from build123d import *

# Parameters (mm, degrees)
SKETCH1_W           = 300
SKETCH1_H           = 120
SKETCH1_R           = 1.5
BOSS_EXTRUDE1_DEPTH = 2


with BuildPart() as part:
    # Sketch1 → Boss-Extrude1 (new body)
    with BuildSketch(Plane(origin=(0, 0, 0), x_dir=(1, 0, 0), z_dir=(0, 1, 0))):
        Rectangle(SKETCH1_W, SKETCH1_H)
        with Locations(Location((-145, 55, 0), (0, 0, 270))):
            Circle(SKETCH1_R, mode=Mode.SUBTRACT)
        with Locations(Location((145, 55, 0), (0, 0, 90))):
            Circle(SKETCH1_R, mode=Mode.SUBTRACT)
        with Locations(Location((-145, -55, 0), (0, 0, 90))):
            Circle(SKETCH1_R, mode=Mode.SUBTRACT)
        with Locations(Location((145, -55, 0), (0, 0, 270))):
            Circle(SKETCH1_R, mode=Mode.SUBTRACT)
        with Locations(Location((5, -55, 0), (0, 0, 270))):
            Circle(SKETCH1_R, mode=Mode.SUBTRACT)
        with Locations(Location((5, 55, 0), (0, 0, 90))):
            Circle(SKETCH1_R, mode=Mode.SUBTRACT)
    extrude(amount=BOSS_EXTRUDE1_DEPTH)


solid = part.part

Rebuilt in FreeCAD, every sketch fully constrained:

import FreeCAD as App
import Part
import Sketcher

doc = App.newDocument("Part")
body = doc.addObject("PartDesign::Body", "Body")

sketch1 = body.newObject("Sketcher::SketchObject", "Sketch")
sketch1.AttachmentSupport = (doc.getObject("XZ_Plane"), [""])
sketch1.MapMode = "FlatFace"
sketch1.addGeometry(Part.LineSegment(App.Vector(-150, -60, 0), App.Vector(-150, 60, 0)), False)
sketch1.addGeometry(Part.LineSegment(App.Vector(-150, 60, 0), App.Vector(150, 60, 0)), False)
sketch1.addGeometry(Part.LineSegment(App.Vector(150, 60, 0), App.Vector(150, -60, 0)), False)
sketch1.addGeometry(Part.LineSegment(App.Vector(150, -60, 0), App.Vector(-150, -60, 0)), False)
sketch1.addGeometry(Part.Circle(App.Vector(-145, 55, 0), App.Vector(0, 0, 1), 1.5), False)
sketch1.addGeometry(Part.Circle(App.Vector(5, 55, 0), App.Vector(0, 0, 1), 1.5), False)
sketch1.addGeometry(Part.Circle(App.Vector(145, 55, 0), App.Vector(0, 0, 1), 1.5), False)
sketch1.addGeometry(Part.Circle(App.Vector(-145, -55, 0), App.Vector(0, 0, 1), 1.5), False)
sketch1.addGeometry(Part.Circle(App.Vector(5, -55, 0), App.Vector(0, 0, 1), 1.5), False)
sketch1.addGeometry(Part.Circle(App.Vector(145, -55, 0), App.Vector(0, 0, 1), 1.5), False)
sketch1.addConstraint(Sketcher.Constraint("Coincident", 0, 2, 1, 1))
sketch1.addConstraint(Sketcher.Constraint("Coincident", 1, 2, 2, 1))
sketch1.addConstraint(Sketcher.Constraint("Coincident", 2, 2, 3, 1))
sketch1.addConstraint(Sketcher.Constraint("Coincident", 3, 2, 0, 1))
sketch1.addConstraint(Sketcher.Constraint("Vertical", 0))
sketch1.addConstraint(Sketcher.Constraint("Horizontal", 1))
sketch1.addConstraint(Sketcher.Constraint("Vertical", 2))
sketch1.addConstraint(Sketcher.Constraint("Horizontal", 3))
sketch1.addConstraint(Sketcher.Constraint("Equal", 4, 5))
sketch1.addConstraint(Sketcher.Constraint("Equal", 5, 6))
sketch1.addConstraint(Sketcher.Constraint("Equal", 6, 7))
sketch1.addConstraint(Sketcher.Constraint("Equal", 7, 8))
sketch1.addConstraint(Sketcher.Constraint("Equal", 8, 9))
sketch1.addConstraint(Sketcher.Constraint("Symmetric", 6, 3, 7, 3, -1, 1))
sketch1.addConstraint(Sketcher.Constraint("Symmetric", 4, 3, 9, 3, -1, 1))
sketch1.addConstraint(Sketcher.Constraint("Symmetric", 0, 2, 2, 2, -1, 1))
sketch1.addConstraint(Sketcher.Constraint("Symmetric", 4, 3, 6, 3, -2))
sketch1.addConstraint(Sketcher.Constraint("Symmetric", 5, 3, 8, 3, -1))
sketch1.addConstraint(Sketcher.Constraint("Horizontal", 4, 3, 5, 3))
sketch1.addConstraint(Sketcher.Constraint("Diameter", 4, 3.0))
sketch1.addConstraint(Sketcher.Constraint("DistanceX", 1, 1, 1, 2, 300.0))
sketch1.addConstraint(Sketcher.Constraint("DistanceY", 0, 1, 0, 2, 120.0))
sketch1.addConstraint(Sketcher.Constraint("DistanceX", 4, 3, -1, 1, 145.0))
sketch1.addConstraint(Sketcher.Constraint("DistanceY", -1, 1, 4, 3, 55.0))
sketch1.addConstraint(Sketcher.Constraint("DistanceX", -1, 1, 5, 3, 5.0))
pad1 = body.newObject("PartDesign::Pad", "Pad")
pad1.Profile = sketch1
pad1.Length = 2
pad1.Reversed = True

doc.recompute()
